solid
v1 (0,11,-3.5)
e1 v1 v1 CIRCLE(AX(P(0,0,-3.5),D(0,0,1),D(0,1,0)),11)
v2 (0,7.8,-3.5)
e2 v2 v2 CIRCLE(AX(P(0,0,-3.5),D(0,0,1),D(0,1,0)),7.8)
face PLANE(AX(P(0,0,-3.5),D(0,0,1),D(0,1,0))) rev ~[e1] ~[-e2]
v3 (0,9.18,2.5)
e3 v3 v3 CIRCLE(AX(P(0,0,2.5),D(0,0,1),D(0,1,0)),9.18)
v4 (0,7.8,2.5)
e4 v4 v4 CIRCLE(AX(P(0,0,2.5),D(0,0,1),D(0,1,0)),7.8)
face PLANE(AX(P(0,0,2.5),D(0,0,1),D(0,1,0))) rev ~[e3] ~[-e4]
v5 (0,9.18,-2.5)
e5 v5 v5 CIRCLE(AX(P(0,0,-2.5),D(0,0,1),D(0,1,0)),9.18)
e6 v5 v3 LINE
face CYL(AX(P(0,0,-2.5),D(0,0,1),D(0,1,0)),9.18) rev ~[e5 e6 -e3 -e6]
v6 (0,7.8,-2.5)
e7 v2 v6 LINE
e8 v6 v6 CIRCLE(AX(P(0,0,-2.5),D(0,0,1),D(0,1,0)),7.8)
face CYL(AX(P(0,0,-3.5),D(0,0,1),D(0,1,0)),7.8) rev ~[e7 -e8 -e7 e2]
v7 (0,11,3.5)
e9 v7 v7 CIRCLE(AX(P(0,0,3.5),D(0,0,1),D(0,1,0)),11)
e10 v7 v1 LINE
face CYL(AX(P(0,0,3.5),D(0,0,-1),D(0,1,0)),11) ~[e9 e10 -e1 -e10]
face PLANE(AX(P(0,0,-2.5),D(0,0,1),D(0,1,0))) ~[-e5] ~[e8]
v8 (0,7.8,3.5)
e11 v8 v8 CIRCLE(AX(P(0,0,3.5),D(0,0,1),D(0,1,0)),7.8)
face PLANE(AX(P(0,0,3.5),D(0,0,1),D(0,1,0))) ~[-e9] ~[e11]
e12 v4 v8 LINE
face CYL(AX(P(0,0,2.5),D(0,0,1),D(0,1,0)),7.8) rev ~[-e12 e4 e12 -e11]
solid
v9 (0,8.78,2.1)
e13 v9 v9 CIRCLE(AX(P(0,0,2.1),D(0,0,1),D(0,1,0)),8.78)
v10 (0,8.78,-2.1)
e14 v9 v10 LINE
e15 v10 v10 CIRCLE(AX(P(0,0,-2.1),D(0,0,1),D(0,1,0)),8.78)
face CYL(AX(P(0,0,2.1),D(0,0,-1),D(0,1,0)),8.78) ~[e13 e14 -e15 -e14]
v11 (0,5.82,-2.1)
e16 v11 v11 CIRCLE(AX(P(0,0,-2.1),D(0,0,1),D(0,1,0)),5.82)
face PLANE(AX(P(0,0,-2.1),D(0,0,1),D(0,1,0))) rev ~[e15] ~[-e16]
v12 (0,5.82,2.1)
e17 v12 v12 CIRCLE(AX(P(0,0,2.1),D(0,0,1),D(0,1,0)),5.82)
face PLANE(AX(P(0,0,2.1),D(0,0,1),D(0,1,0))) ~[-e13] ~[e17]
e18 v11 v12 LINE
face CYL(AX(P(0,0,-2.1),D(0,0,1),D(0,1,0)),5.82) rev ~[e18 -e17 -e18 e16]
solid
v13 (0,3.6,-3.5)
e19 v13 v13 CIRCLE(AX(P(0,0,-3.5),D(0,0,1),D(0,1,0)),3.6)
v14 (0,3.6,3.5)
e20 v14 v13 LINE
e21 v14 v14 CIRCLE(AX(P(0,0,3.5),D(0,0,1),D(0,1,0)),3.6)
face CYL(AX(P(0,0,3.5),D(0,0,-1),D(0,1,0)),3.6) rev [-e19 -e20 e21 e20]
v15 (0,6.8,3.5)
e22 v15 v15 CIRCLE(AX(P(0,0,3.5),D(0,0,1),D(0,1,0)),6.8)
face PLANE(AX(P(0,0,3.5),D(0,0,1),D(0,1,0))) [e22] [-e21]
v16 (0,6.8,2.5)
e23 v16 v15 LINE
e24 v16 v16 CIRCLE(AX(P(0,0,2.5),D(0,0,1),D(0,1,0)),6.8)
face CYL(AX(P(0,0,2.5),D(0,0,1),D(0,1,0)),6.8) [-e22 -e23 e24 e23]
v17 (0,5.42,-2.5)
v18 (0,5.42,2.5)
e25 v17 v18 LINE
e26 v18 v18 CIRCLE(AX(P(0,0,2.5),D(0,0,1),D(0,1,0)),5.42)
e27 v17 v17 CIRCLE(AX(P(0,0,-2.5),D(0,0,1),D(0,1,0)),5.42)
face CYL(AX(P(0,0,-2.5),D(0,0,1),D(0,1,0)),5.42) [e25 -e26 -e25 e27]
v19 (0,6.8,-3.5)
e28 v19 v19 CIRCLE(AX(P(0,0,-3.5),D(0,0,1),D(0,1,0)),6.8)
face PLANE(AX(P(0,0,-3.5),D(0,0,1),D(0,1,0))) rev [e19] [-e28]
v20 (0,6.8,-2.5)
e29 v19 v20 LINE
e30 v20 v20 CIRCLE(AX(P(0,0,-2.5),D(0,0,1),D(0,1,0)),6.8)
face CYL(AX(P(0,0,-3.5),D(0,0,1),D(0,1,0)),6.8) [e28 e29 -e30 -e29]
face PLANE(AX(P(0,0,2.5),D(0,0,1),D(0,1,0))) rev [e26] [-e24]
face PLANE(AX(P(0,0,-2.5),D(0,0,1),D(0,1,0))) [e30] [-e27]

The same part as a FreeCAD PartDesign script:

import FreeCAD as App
import Part
import Sketcher
from FreeCAD import Vector
Q = App.Units.Quantity

doc = App.newDocument("Part")
params = doc.addObject("Spreadsheet::Sheet", "Params")
for row, (alias, value) in enumerate([
    ("sketch1_height", "1 mm"),
    ("sketch1_height2", "7 mm"),
    ("sketch1_width", "2.96 mm"),
    ("revolution_angle", "360 deg"),
], start=1):
    params.set(f"A{row}", alias)
    params.set(f"B{row}", "=" + value)
    params.setAlias(f"B{row}", alias)

body = doc.addObject("PartDesign::Body", "Body")
body.AllowCompound = True

sketch1 = doc.addObject("Sketcher::SketchObject", "Sketch")
body.addObject(sketch1)
sketch1.AttachmentSupport = (doc.YZ_Plane, [""])
sketch1.MapMode = "FlatFace"
sketch1.addGeometry(Part.LineSegment(Vector(8.78, 2.1, 0), Vector(5.82, 2.1, 0)), False)
sketch1.addGeometry(Part.LineSegment(Vector(5.82, 2.1, 0), Vector(5.82, -2.1, 0)), False)
sketch1.addGeometry(Part.LineSegment(Vector(5.82, -2.1, 0), Vector(8.78, -2.1, 0)), False)
sketch1.addGeometry(Part.LineSegment(Vector(8.78, -2.1, 0), Vector(8.78, 2.1, 0)), False)
sketch1.addGeometry(Part.LineSegment(Vector(7.8, 3.5, 0), Vector(7.8, 2.5, 0)), False)
sketch1.addGeometry(Part.LineSegment(Vector(7.8, 2.5, 0), Vector(9.18, 2.5, 0)), False)
sketch1.addGeometry(Part.LineSegment(Vector(9.18, 2.5, 0), Vector(9.18, -2.5, 0)), False)
sketch1.addGeometry(Part.LineSegment(Vector(9.18, -2.5, 0), Vector(7.8, -2.5, 0)), False)
sketch1.addGeometry(Part.LineSegment(Vector(7.8, -2.5, 0), Vector(7.8, -3.5, 0)), False)
sketch1.addGeometry(Part.LineSegment(Vector(7.8, -3.5, 0), Vector(11, -3.5, 0)), False)
sketch1.addGeometry(Part.LineSegment(Vector(11, -3.5, 0), Vector(11, 3.5, 0)), False)
sketch1.addGeometry(Part.LineSegment(Vector(11, 3.5, 0), Vector(7.8, 3.5, 0)), False)
sketch1.addGeometry(Part.LineSegment(Vector(3.6, 3.5, 0), Vector(3.6, -3.5, 0)), False)
sketch1.addGeometry(Part.LineSegment(Vector(3.6, -3.5, 0), Vector(6.8, -3.5, 0)), False)
sketch1.addGeometry(Part.LineSegment(Vector(6.8, -3.5, 0), Vector(6.8, -2.5, 0)), False)
sketch1.addGeometry(Part.LineSegment(Vector(6.8, -2.5, 0), Vector(5.42, -2.5, 0)), False)
sketch1.addGeometry(Part.LineSegment(Vector(5.42, -2.5, 0), Vector(5.42, 2.5, 0)), False)
sketch1.addGeometry(Part.LineSegment(Vector(5.42, 2.5, 0), Vector(6.8, 2.5, 0)), False)
sketch1.addGeometry(Part.LineSegment(Vector(6.8, 2.5, 0), Vector(6.8, 3.5, 0)), False)
sketch1.addGeometry(Part.LineSegment(Vector(6.8, 3.5, 0), Vector(3.6, 3.5, 0)), False)
sketch1.addConstraint(Sketcher.Constraint("Coincident", 0, 2, 1, 1))
sketch1.addConstraint(Sketcher.Constraint("Coincident", 1, 2, 2, 1))
sketch1.addConstraint(Sketcher.Constraint("Coincident", 2, 2, 3, 1))
sketch1.addConstraint(Sketcher.Constraint("Coincident", 3, 2, 0, 1))
sketch1.addConstraint(Sketcher.Constraint("Coincident", 4, 2, 5, 1))
sketch1.addConstraint(Sketcher.Constraint("Coincident", 5, 2, 6, 1))
sketch1.addConstraint(Sketcher.Constraint("Coincident", 6, 2, 7, 1))
sketch1.addConstraint(Sketcher.Constraint("Coincident", 7, 2, 8, 1))
sketch1.addConstraint(Sketcher.Constraint("Coincident", 8, 2, 9, 1))
sketch1.addConstraint(Sketcher.Constraint("Coincident", 9, 2, 10, 1))
sketch1.addConstraint(Sketcher.Constraint("Coincident", 10, 2, 11, 1))
sketch1.addConstraint(Sketcher.Constraint("Coincident", 11, 2, 4, 1))
sketch1.addConstraint(Sketcher.Constraint("Coincident", 12, 2, 13, 1))
sketch1.addConstraint(Sketcher.Constraint("Coincident", 13, 2, 14, 1))
sketch1.addConstraint(Sketcher.Constraint("Coincident", 14, 2, 15, 1))
sketch1.addConstraint(Sketcher.Constraint("Coincident", 15, 2, 16, 1))
sketch1.addConstraint(Sketcher.Constraint("Coincident", 16, 2, 17, 1))
sketch1.addConstraint(Sketcher.Constraint("Coincident", 17, 2, 18, 1))
sketch1.addConstraint(Sketcher.Constraint("Coincident", 18, 2, 19, 1))
sketch1.addConstraint(Sketcher.Constraint("Coincident", 19, 2, 12, 1))
sketch1.addConstraint(Sketcher.Constraint("Horizontal", 0))
sketch1.addConstraint(Sketcher.Constraint("Vertical", 1))
sketch1.addConstraint(Sketcher.Constraint("Horizontal", 2))
sketch1.addConstraint(Sketcher.Constraint("Vertical", 3))
sketch1.addConstraint(Sketcher.Constraint("Vertical", 4))
sketch1.addConstraint(Sketcher.Constraint("Horizontal", 5))
sketch1.addConstraint(Sketcher.Constraint("Vertical", 6))
sketch1.addConstraint(Sketcher.Constraint("Horizontal", 7))
sketch1.addConstraint(Sketcher.Constraint("Vertical", 8))
sketch1.addConstraint(Sketcher.Constraint("Horizontal", 9))
sketch1.addConstraint(Sketcher.Constraint("Vertical", 10))
sketch1.addConstraint(Sketcher.Constraint("Horizontal", 11))
sketch1.addConstraint(Sketcher.Constraint("Vertical", 12))
sketch1.addConstraint(Sketcher.Constraint("Horizontal", 13))
sketch1.addConstraint(Sketcher.Constraint("Vertical", 14))
sketch1.addConstraint(Sketcher.Constraint("Horizontal", 15))
sketch1.addConstraint(Sketcher.Constraint("Vertical", 16))
sketch1.addConstraint(Sketcher.Constraint("Horizontal", 17))
sketch1.addConstraint(Sketcher.Constraint("Vertical", 18))
sketch1.addConstraint(Sketcher.Constraint("Horizontal", 19))
sketch1.addConstraint(Sketcher.Constraint("Symmetric", 4, 2, 7, 2, -1))
sketch1.addConstraint(Sketcher.Constraint("Symmetric", 14, 2, 17, 2, -1))
sketch1.addConstraint(Sketcher.Constraint("Horizontal", 9, 2, 12, 2))
sketch1.addConstraint(Sketcher.Constraint("Horizontal", 7, 2, 14, 2))
sketch1.addConstraint(Sketcher.Constraint("Horizontal", 11, 2, 18, 2))
sketch1.addConstraint(Sketcher.Constraint("Equal", 11, 13))
sketch1.addConstraint(Sketcher.Constraint("Equal", 7, 15))
sketch1.addConstraint(Sketcher.Constraint("Equal", 4, 8))
sketch1.addConstraint(Sketcher.Constraint("DistanceY", 4, 2, 4, 1, Q("1 mm")))
sketch1.addConstraint(Sketcher.Constraint("DistanceY", 10, 1, 10, 2, Q("7 mm")))
sketch1.addConstraint(Sketcher.Constraint("DistanceX", -1, 1, 9, 2, Q("11 mm")))
sketch1.addConstraint(Sketcher.Constraint("DistanceX", 13, 2, 8, 2, Q("1 mm")))
sketch1.addConstraint(Sketcher.Constraint("DistanceX", 0, 2, 0, 1, Q("2.96 mm")))
sketch1.addConstraint(Sketcher.Constraint("DistanceX", -1, 1, 12, 2, Q("3.6 mm")))
sketch1.addConstraint(Sketcher.Constraint("DistanceY", 3, 2, 4, 2, Q("0.4 mm")))
sketch1.addConstraint(Sketcher.Constraint("DistanceX", 3, 2, 5, 2, Q("0.4 mm")))
sketch1.addConstraint(Sketcher.Constraint("DistanceY", 6, 2, 2, 2, Q("0.4 mm")))
sketch1.addConstraint(Sketcher.Constraint("DistanceX", 15, 2, 1, 2, Q("0.4 mm")))
sketch1.setExpression("Constraints[48]", "Params.sketch1_height")
sketch1.setExpression("Constraints[49]", "Params.sketch1_height2")
sketch1.setExpression("Constraints[52]", "Params.sketch1_width")
revolution = doc.addObject("PartDesign::Revolution", "Revolution")
body.addObject(revolution)
revolution.Profile = sketch1
revolution.ReferenceAxis = (sketch1, ["V_Axis"])
revolution.setExpression("Angle", "Params.revolution_angle")

doc.recompute()
